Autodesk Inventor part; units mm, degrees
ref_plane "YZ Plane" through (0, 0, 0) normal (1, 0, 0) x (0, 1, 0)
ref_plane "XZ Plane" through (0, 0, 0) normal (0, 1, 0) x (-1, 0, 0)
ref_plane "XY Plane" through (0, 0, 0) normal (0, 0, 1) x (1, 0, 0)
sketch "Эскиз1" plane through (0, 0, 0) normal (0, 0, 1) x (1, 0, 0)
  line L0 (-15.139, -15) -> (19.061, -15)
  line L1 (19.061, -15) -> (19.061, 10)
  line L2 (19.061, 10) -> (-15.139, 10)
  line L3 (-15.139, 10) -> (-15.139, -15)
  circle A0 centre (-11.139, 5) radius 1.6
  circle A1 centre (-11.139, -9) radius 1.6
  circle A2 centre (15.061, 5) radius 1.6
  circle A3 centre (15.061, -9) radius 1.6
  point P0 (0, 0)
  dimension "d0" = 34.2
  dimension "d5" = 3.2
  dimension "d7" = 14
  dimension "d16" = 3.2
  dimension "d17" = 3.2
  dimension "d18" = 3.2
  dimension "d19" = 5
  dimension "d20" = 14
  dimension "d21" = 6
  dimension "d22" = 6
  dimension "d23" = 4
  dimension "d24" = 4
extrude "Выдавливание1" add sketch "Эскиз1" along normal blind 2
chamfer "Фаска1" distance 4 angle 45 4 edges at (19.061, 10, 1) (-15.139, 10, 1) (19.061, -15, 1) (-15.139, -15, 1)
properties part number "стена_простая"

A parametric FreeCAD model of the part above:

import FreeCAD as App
import Part
import Sketcher


def edges_at(feature, points):
    """Names of the edges that pass closest to the given points."""
    edges = feature.Shape.Edges
    near = lambda p: min(range(len(edges)), key=lambda i: edges[i].distToShape(Part.Vertex(*p))[0])
    return sorted({f"Edge{near(p) + 1}" for p in points})


def add_polygon(sketch, points):
    """Adds a closed chain of lines whose ends are joined by coincident constraints."""
    first, n = sketch.GeometryCount, len(points)
    for a, b in zip(points, points[1:] + points[:1]):
        sketch.addGeometry(Part.LineSegment(App.Vector(*a, 0), App.Vector(*b, 0)), False)
    for i in range(n):
        sketch.addConstraint(Sketcher.Constraint("Coincident", first + i, 2, first + (i + 1) % n, 1))

doc = App.newDocument("Part")
params = doc.addObject("Spreadsheet::Sheet", "Params")
for row, (alias, value) in enumerate([
    ("sketch1_diameter", "3.2 mm"),
    ("sketch1_width", "34.2 mm"),
    ("pad1_length", "2 mm"),
    ("chamfer_size", "4 mm"),
], start=1):
    params.set(f"A{row}", alias)
    params.set(f"B{row}", "=" + value)
    params.setAlias(f"B{row}", alias)

body = doc.addObject("PartDesign::Body", "Body")

sketch1 = body.newObject("Sketcher::SketchObject", "Sketch")
sketch1.AttachmentSupport = (doc.getObject("XY_Plane"), [""])
sketch1.MapMode = "FlatFace"
add_polygon(sketch1, [(-15.1, 10), (-15.1, -15), (19.1, -15), (19.1, 10)])
sketch1.addGeometry(Part.Circle(App.Vector(-11.1, -9, 0), App.Vector(0, 0, 1), 1.6), False)
sketch1.addGeometry(Part.Circle(App.Vector(15.1, -9, 0), App.Vector(0, 0, 1), 1.6), False)
sketch1.addGeometry(Part.Circle(App.Vector(-11.1, 5, 0), App.Vector(0, 0, 1), 1.6), False)
sketch1.addGeometry(Part.Circle(App.Vector(15.1, 5, 0), App.Vector(0, 0, 1), 1.6), False)
sketch1.addConstraint([
    Sketcher.Constraint("Vertical", 0),
    Sketcher.Constraint("Horizontal", 1),
    Sketcher.Constraint("Vertical", 2),
    Sketcher.Constraint("Horizontal", 3),
    Sketcher.Constraint("Equal", 4, 5),
    Sketcher.Constraint("Equal", 5, 6),
    Sketcher.Constraint("Equal", 6, 7),
    Sketcher.Constraint("Horizontal", 4, 3, 5, 3),
    Sketcher.Constraint("Horizontal", 6, 3, 7, 3),
    Sketcher.Constraint("Vertical", 4, 3, 6, 3),
    Sketcher.Constraint("Vertical", 5, 3, 7, 3),
    Sketcher.Constraint("Diameter", 4, 3.2),
    Sketcher.Constraint("DistanceX", 1, 1, 1, 2, 34.2),
    Sketcher.Constraint("DistanceY", -1, 1, 6, 3, 5.0),
    Sketcher.Constraint("DistanceY", 4, 3, 6, 3, 14.0),
    Sketcher.Constraint("DistanceX", 0, 2, 4, 3, 4.0),
    Sketcher.Constraint("DistanceY", 0, 2, 4, 3, 6.0),
    Sketcher.Constraint("DistanceX", 5, 3, 1, 2, 4.0),
    Sketcher.Constraint("DistanceY", 7, 3, 2, 2, 5.0),
    Sketcher.Constraint("DistanceX", 4, 3, -1, 1, 11.139),
])
sketch1.setExpression("Constraints[15]", "Params.sketch1_diameter")
sketch1.setExpression("Constraints[16]", "Params.sketch1_width")
pad1 = body.newObject("PartDesign::Pad", "Pad")
pad1.Profile = sketch1
pad1.setExpression("Length", "Params.pad1_length")
doc.recompute()

chamfer = body.newObject("PartDesign::Chamfer", "Chamfer")
chamfer.Base = (pad1, edges_at(pad1, [
    (19.061, 10, 1),
    (-15.139, 10, 1),
    (19.061, -15, 1),
    (-15.139, -15, 1),
]))
chamfer.setExpression("Size", "Params.chamfer_size")

doc.recompute()
